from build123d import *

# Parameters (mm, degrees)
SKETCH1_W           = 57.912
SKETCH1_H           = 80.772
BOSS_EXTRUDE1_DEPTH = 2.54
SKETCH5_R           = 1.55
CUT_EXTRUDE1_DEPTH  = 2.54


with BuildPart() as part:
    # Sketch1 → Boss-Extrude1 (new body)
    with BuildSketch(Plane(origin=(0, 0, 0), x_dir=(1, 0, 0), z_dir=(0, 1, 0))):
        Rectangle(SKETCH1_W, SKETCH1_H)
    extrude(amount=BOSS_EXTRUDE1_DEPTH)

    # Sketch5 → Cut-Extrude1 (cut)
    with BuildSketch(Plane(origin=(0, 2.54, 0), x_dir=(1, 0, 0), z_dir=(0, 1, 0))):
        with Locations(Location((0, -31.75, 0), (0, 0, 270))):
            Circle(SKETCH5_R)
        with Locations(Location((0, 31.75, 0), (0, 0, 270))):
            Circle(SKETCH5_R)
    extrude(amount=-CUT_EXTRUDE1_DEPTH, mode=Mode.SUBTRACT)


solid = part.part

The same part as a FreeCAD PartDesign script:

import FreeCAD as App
import Part
import Sketcher
from FreeCAD import Vector
Q = App.Units.Quantity


def add_polygon(sketch, points):
    """Adds a closed chain of lines whose ends are joined by coincident constraints."""
    first, n = sketch.GeometryCount, len(points)
    for a, b in zip(points, points[1:] + points[:1]):
        sketch.addGeometry(Part.LineSegment(App.Vector(*a, 0), App.Vector(*b, 0)), False)
    for i in range(n):
        sketch.addConstraint(Sketcher.Constraint("Coincident", first + i, 2, first + (i + 1) % n, 1))

doc = App.newDocument("Part")
body = doc.addObject("PartDesign::Body", "Body")

# Sketch on XZ plane
sketch1 = body.newObject("Sketcher::SketchObject", "Sketch")
sketch1.AttachmentSupport = (doc.getObject("XZ_Plane"), [""])
sketch1.MapMode = "FlatFace"
add_polygon(sketch1, [(-29, -40), (-29, 40), (29, 40), (29, -40)])  # lines 0-3
sketch1.addConstraint([
    Sketcher.Constraint("Vertical", 0),
    Sketcher.Constraint("Horizontal", 1),
    Sketcher.Constraint("Vertical", 2),
    Sketcher.Constraint("Horizontal", 3),
    Sketcher.Constraint("Symmetric", 0, 2, 2, 2, -1, 1),
    Sketcher.Constraint("DistanceX", 1, 1, 1, 2, Q("2.28 in")),
    Sketcher.Constraint("DistanceY", 0, 1, 0, 2, Q("3.18 in")),
])
pad1 = body.newObject("PartDesign::Pad", "Pad")
pad1.Profile = sketch1
pad1.Length = Q("0.1 in")
pad1.Reversed = True

# Sketch on XZ plane
sketch2 = body.newObject("Sketcher::SketchObject", "Sketch001")
sketch2.AttachmentSupport = (doc.getObject("XZ_Plane"), [""])
sketch2.MapMode = "FlatFace"
sketch2.AttachmentOffset = App.Placement(Vector(0, 0, -0.1 * 25.4), App.Rotation())
sketch2.addGeometry([
    Part.Circle(Vector(0, 31.8, 0), Vector(0, 0, 1), 1.6),
    Part.Circle(Vector(0, -31.8, 0), Vector(0, 0, 1), 1.6),
], False)
sketch2.addConstraint([
    Sketcher.Constraint("Equal", 0, 1),
    Sketcher.Constraint("Symmetric", 0, 3, 1, 3, -1, 1),
    Sketcher.Constraint("PointOnObject", 0, 3, -2),
    Sketcher.Constraint("DistanceY", 1, 3, 0, 3, Q("2.5 in")),
    Sketcher.Constraint("Diameter", 0, 3.1),
])
pocket1 = body.newObject("PartDesign::Pocket", "Pocket")
pocket1.Profile = sketch2
pocket1.Length = Q("0.1 in")
pocket1.Reversed = True

doc.recompute()
